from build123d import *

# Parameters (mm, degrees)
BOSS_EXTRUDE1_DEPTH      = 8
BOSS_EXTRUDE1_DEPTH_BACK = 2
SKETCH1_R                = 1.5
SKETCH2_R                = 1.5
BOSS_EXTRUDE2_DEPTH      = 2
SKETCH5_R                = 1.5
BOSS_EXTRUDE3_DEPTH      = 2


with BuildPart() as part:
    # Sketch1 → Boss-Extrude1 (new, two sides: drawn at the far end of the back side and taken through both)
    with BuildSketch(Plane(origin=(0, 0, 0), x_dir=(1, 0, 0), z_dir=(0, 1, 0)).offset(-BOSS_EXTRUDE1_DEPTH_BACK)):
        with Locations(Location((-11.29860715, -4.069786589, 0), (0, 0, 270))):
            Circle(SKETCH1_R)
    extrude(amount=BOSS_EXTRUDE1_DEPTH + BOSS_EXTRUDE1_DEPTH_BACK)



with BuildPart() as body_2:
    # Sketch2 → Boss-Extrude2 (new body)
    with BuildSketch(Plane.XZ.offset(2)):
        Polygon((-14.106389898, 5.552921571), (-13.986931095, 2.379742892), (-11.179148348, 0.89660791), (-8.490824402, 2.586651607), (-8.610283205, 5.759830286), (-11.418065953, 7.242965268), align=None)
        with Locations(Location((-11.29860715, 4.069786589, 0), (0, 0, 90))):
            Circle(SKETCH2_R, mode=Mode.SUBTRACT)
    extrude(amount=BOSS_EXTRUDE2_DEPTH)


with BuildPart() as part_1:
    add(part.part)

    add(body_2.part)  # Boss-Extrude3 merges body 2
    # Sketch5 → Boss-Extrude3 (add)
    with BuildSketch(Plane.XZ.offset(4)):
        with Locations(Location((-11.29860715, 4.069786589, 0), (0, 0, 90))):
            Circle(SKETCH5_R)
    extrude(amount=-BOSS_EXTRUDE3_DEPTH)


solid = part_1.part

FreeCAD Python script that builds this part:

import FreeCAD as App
import Part
import Sketcher


def add_polygon(sketch, points):
    """Adds a closed chain of lines whose ends are joined by coincident constraints."""
    first, n = sketch.GeometryCount, len(points)
    for a, b in zip(points, points[1:] + points[:1]):
        sketch.addGeometry(Part.LineSegment(App.Vector(*a, 0), App.Vector(*b, 0)), False)
    for i in range(n):
        sketch.addConstraint(Sketcher.Constraint("Coincident", first + i, 2, first + (i + 1) % n, 1))

doc = App.newDocument("Part")
body = doc.addObject("PartDesign::Body", "Body")

sketch1 = doc.addObject("Sketcher::SketchObject", "Sketch")
body.addObject(sketch1)
sketch1.AttachmentSupport = (doc.XZ_Plane, [""])
sketch1.MapMode = "FlatFace"
sketch1.addGeometry(Part.Circle(App.Vector(-11.3, 4.1, 0), App.Vector(0, 0, 1), 1.5), False)
sketch1.addConstraint([
    Sketcher.Constraint("Diameter", 0, 3.0),
    Sketcher.Constraint("DistanceX", 0, 3, -1, 1, 11.298607),
    Sketcher.Constraint("DistanceY", -1, 1, 0, 3, 4.069787),
])
pad1 = doc.addObject("PartDesign::Pad", "Pad")
body.addObject(pad1)
pad1.Profile = sketch1
pad1.Type = "TwoLengths"
pad1.Length = 8
pad1.Length2 = 2
pad1.Reversed = True
body2 = doc.addObject("PartDesign::Body", "Body001")

sketch2 = doc.addObject("Sketcher::SketchObject", "Sketch001")
body2.addObject(sketch2)
sketch2.AttachmentSupport = (doc.getObject("XZ_Plane001"), [""])
sketch2.MapMode = "FlatFace"
sketch2.AttachmentOffset = App.Placement(App.Vector(0, 0, 2), App.Rotation())
add_polygon(sketch2, [(-14.1, 5.6), (-14, 2.4), (-11.2, 0.9), (-8.5, 2.6), (-8.6, 5.8), (-11.4, 7.2)])
sketch2.addGeometry(Part.Circle(App.Vector(-11.3, 4.1, 0), App.Vector(0, 0, 1), 1.5), False)
sketch2.addConstraint([
    Sketcher.Constraint("Parallel", 0, 3),
    Sketcher.Constraint("Parallel", 1, 4),
    Sketcher.Constraint("Parallel", 2, 5),
    Sketcher.Constraint("Equal", 0, 1),
    Sketcher.Constraint("Equal", 1, 2),
    Sketcher.Constraint("Equal", 2, 3),
    Sketcher.Constraint("Diameter", 6, 3.0),
    Sketcher.Constraint("DistanceX", 0, 2, -1, 1, 13.986931),
    Sketcher.Constraint("DistanceX", 1, 2, -1, 1, 11.179148),
    Sketcher.Constraint("DistanceY", -1, 1, 2, 2, 2.586652),
    Sketcher.Constraint("DistanceY", -1, 1, 3, 2, 5.75983),
    Sketcher.Constraint("DistanceX", 5, 2, -1, 1, 14.10639),
    Sketcher.Constraint("DistanceY", -1, 1, 5, 2, 5.552922),
    Sketcher.Constraint("DistanceX", 6, 3, 1, 2, 0.119459),
    Sketcher.Constraint("DistanceY", 1, 2, 6, 3, 3.173179),
])
pad2 = doc.addObject("PartDesign::Pad", "Pad001")
body2.addObject(pad2)
pad2.Profile = sketch2
pad2.Length = 2
body.AllowCompound = True
doc.recompute()

boolean = doc.addObject("PartDesign::Boolean", "Boolean")
body.addObject(boolean)
boolean.Type = "Fuse"
boolean.addObjects([body2])

sketch3 = doc.addObject("Sketcher::SketchObject", "Sketch002")
body.addObject(sketch3)
sketch3.AttachmentSupport = (doc.XZ_Plane, [""])
sketch3.MapMode = "FlatFace"
sketch3.AttachmentOffset = App.Placement(App.Vector(0, 0, 4), App.Rotation())
sketch3.addGeometry(Part.Circle(App.Vector(-11.3, 4.1, 0), App.Vector(0, 0, 1), 1.5), False)
sketch3.addConstraint([
    Sketcher.Constraint("Diameter", 0, 3.0),
    Sketcher.Constraint("DistanceX", 0, 3, -1, 1, 11.298607),
    Sketcher.Constraint("DistanceY", -1, 1, 0, 3, 4.069787),
])
pad3 = doc.addObject("PartDesign::Pad", "Pad002")
body.addObject(pad3)
pad3.Profile = sketch3
pad3.Length = 2
pad3.Reversed = True

doc.recompute()
